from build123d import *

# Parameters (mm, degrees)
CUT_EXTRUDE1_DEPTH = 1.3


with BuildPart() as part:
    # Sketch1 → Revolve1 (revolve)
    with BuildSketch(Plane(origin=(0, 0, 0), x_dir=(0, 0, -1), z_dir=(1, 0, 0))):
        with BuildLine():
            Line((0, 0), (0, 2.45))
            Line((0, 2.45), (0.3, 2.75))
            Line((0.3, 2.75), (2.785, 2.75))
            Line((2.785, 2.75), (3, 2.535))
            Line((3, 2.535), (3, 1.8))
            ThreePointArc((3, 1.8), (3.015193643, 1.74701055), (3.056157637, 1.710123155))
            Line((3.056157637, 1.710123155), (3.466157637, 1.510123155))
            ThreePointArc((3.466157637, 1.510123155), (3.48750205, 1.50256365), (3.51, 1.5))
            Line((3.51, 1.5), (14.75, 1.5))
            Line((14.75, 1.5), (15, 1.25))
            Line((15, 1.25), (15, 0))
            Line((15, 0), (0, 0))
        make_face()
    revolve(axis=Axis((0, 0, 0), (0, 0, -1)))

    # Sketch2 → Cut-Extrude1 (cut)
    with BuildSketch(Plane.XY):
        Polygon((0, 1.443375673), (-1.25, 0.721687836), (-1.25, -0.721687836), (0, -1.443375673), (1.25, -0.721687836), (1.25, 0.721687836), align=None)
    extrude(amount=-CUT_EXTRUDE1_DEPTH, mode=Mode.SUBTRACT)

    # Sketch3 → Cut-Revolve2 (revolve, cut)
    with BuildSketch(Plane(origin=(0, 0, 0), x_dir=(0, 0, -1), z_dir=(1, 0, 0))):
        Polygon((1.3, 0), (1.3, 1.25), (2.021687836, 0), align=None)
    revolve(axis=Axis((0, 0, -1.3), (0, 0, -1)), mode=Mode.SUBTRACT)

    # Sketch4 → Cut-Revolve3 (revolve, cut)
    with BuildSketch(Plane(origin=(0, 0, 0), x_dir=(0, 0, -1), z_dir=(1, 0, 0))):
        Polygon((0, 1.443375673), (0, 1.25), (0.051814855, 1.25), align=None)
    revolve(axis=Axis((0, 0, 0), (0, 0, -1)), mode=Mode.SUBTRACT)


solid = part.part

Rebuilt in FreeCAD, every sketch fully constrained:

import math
import FreeCAD as App
import Part
import Sketcher
from FreeCAD import Vector
Q = App.Units.Quantity

doc = App.newDocument("Part")
body = doc.addObject("PartDesign::Body", "Body")

sketch1 = body.newObject("Sketcher::SketchObject", "Sketch")
sketch1.AttachmentSupport = (doc.getObject("YZ_Plane"), [""])
sketch1.MapMode = "FlatFace"
sketch1.addGeometry([
    Part.LineSegment(Vector(2.45, 0, 0), Vector(0, 0, 0)),
    Part.LineSegment(Vector(0, 0, 0), Vector(0, -15, 0)),
    Part.LineSegment(Vector(0, -15, 0), Vector(1.25, -15, 0)),
    Part.LineSegment(Vector(1.25, -15, 0), Vector(1.5, -14.75, 0)),
    Part.LineSegment(Vector(1.5, -14.75, 0), Vector(1.5, -3.51, 0)),
    Part.ArcOfCircle(Part.Circle(Vector(1.6, -3.51, 0), Vector(0, 0, 1), 0.1), math.radians(153.996654), math.radians(180.000001)),
    Part.LineSegment(Vector(1.510123, -3.466158, 0), Vector(1.710123, -3.056158, 0)),
    Part.ArcOfCircle(Part.Circle(Vector(1.8, -3.1, 0), Vector(0, 0, 1), 0.1), math.radians(90), math.radians(153.996654)),
    Part.LineSegment(Vector(1.8, -3, 0), Vector(2.535, -3, 0)),
    Part.LineSegment(Vector(2.535, -3, 0), Vector(2.75, -2.785, 0)),
    Part.LineSegment(Vector(2.75, -2.785, 0), Vector(2.75, -0.3, 0)),
    Part.LineSegment(Vector(2.75, -0.3, 0), Vector(2.45, 0, 0)),
], False)
sketch1.addConstraint([
    Sketcher.Constraint("Coincident", 0, 2, 1, 1),
    Sketcher.Constraint("Coincident", 1, 2, 2, 1),
    Sketcher.Constraint("Coincident", 2, 2, 3, 1),
    Sketcher.Constraint("Coincident", 3, 2, 4, 1),
    Sketcher.Constraint("Tangent", 4, 2, 5, 2),
    Sketcher.Constraint("Tangent", 5, 1, 6, 1),
    Sketcher.Constraint("Tangent", 6, 2, 7, 2),
    Sketcher.Constraint("Tangent", 7, 1, 8, 1),
    Sketcher.Constraint("Coincident", 8, 2, 9, 1),
    Sketcher.Constraint("Coincident", 9, 2, 10, 1),
    Sketcher.Constraint("Coincident", 10, 2, 11, 1),
    Sketcher.Constraint("Coincident", 11, 2, 0, 1),
    Sketcher.Constraint("Horizontal", 0),
    Sketcher.Constraint("Vertical", 1),
    Sketcher.Constraint("Horizontal", 2),
    Sketcher.Constraint("Vertical", 4),
    Sketcher.Constraint("Horizontal", 8),
    Sketcher.Constraint("Vertical", 10),
    Sketcher.Constraint("Coincident", 0, 2, -1, 1),
    Sketcher.Constraint("Equal", 5, 7),
    Sketcher.Constraint("Parallel", 3, 9),
    Sketcher.Constraint("Perpendicular", 9, 11),
    Sketcher.Constraint("Radius", 5, 0.1),
    Sketcher.Constraint("DistanceY", 1, 2, 1, 1, 15.0),
    Sketcher.Constraint("Angle", 3, Q("45 deg")),
    Sketcher.Constraint("DistanceY", 7, 1, -1, 1, 3.0),
    Sketcher.Constraint("DistanceX", 0, 2, 0, 1, 2.45),
    Sketcher.Constraint("DistanceX", 2, 1, 2, 2, 1.25),
    Sketcher.Constraint("DistanceY", 4, 1, 4, 2, 11.24),
    Sketcher.Constraint("DistanceX", -1, 1, 5, 3, 1.6),
    Sketcher.Constraint("DistanceX", -1, 1, 7, 3, 1.8),
    Sketcher.Constraint("DistanceY", 10, 2, -1, 1, 0.3),
    Sketcher.Constraint("DistanceX", 8, 1, 8, 2, 0.735),
])
revolution = body.newObject("PartDesign::Revolution", "Revolution")
revolution.Profile = sketch1
revolution.ReferenceAxis = (sketch1, ["V_Axis"])
revolution.Angle = 360

sketch2 = body.newObject("Sketcher::SketchObject", "Sketch001")
sketch2.AttachmentSupport = (doc.getObject("XY_Plane"), [""])
sketch2.MapMode = "FlatFace"
sketch2.addGeometry([
    Part.LineSegment(Vector(0, 1.443376, 0), Vector(-1.25, 0.721688, 0)),
    Part.LineSegment(Vector(-1.25, 0.721688, 0), Vector(-1.25, -0.721688, 0)),
    Part.LineSegment(Vector(-1.25, -0.721688, 0), Vector(0, -1.443376, 0)),
    Part.LineSegment(Vector(0, -1.443376, 0), Vector(1.25, -0.721688, 0)),
    Part.LineSegment(Vector(1.25, -0.721688, 0), Vector(1.25, 0.721688, 0)),
    Part.LineSegment(Vector(1.25, 0.721688, 0), Vector(0, 1.443376, 0)),
], False)
sketch2.addConstraint([
    Sketcher.Constraint("Coincident", 0, 2, 1, 1),
    Sketcher.Constraint("Coincident", 1, 2, 2, 1),
    Sketcher.Constraint("Coincident", 2, 2, 3, 1),
    Sketcher.Constraint("Coincident", 3, 2, 4, 1),
    Sketcher.Constraint("Coincident", 4, 2, 5, 1),
    Sketcher.Constraint("Coincident", 5, 2, 0, 1),
    Sketcher.Constraint("Vertical", 1),
    Sketcher.Constraint("Vertical", 4),
    Sketcher.Constraint("Symmetric", 0, 2, 3, 2, -1, 1),
    Sketcher.Constraint("Symmetric", 2, 2, 5, 2, -1, 1),
    Sketcher.Constraint("PointOnObject", 2, 2, -2),
    Sketcher.Constraint("Parallel", 2, 5),
    Sketcher.Constraint("Horizontal", 1, 2, 3, 2),
    Sketcher.Constraint("Angle", 0, Q("-150 deg")),
    Sketcher.Constraint("DistanceX", 1, 2, 3, 2, 2.5),
    Sketcher.Constraint("DistanceY", 1, 2, 1, 1, 1.443376),
])
pocket1 = body.newObject("PartDesign::Pocket", "Pocket")
pocket1.Profile = sketch2
pocket1.Length = 1.3

sketch3 = body.newObject("Sketcher::SketchObject", "Sketch002")
sketch3.AttachmentSupport = (doc.getObject("YZ_Plane"), [""])
sketch3.MapMode = "FlatFace"
sketch3.addGeometry([
    Part.LineSegment(Vector(1.25, -1.3, 0), Vector(0, -1.3, 0)),
    Part.LineSegment(Vector(0, -1.3, 0), Vector(0, -2.021688, 0)),
    Part.LineSegment(Vector(0, -2.021688, 0), Vector(1.25, -1.3, 0)),
], False)
sketch3.addConstraint([
    Sketcher.Constraint("Coincident", 0, 2, 1, 1),
    Sketcher.Constraint("Coincident", 1, 2, 2, 1),
    Sketcher.Constraint("Coincident", 2, 2, 0, 1),
    Sketcher.Constraint("Horizontal", 0),
    Sketcher.Constraint("Vertical", 1),
    Sketcher.Constraint("PointOnObject", 0, 2, -2),
    Sketcher.Constraint("Angle", 2, Q("30 deg")),
    Sketcher.Constraint("DistanceX", 0, 2, 0, 1, 1.25),
    Sketcher.Constraint("DistanceY", 0, 2, -1, 1, 1.3),
])
groove = body.newObject("PartDesign::Groove", "Groove")
groove.Profile = sketch3
groove.ReferenceAxis = (sketch3, ["V_Axis"])
groove.Angle = 360

sketch4 = body.newObject("Sketcher::SketchObject", "Sketch003")
sketch4.AttachmentSupport = (doc.getObject("YZ_Plane"), [""])
sketch4.MapMode = "FlatFace"
sketch4.addGeometry([
    Part.LineSegment(Vector(1.443376, 0, 0), Vector(1.25, 0, 0)),
    Part.LineSegment(Vector(1.25, 0, 0), Vector(1.25, -0.051815, 0)),
    Part.LineSegment(Vector(1.25, -0.051815, 0), Vector(1.443376, 0, 0)),
], False)
sketch4.addConstraint([
    Sketcher.Constraint("Coincident", 0, 2, 1, 1),
    Sketcher.Constraint("Coincident", 1, 2, 2, 1),
    Sketcher.Constraint("Coincident", 2, 2, 0, 1),
    Sketcher.Constraint("Horizontal", 0),
    Sketcher.Constraint("Vertical", 1),
    Sketcher.Constraint("PointOnObject", 0, 2, -1),
    Sketcher.Constraint("Angle", 2, Q("15 deg")),
    Sketcher.Constraint("DistanceX", -1, 1, 0, 2, 1.25),
    Sketcher.Constraint("DistanceX", 0, 2, 0, 1, 0.193376),
])
groove2 = body.newObject("PartDesign::Groove", "Groove001")
groove2.Profile = sketch4
groove2.ReferenceAxis = (sketch4, ["V_Axis"])
groove2.Angle = 360

doc.recompute()
